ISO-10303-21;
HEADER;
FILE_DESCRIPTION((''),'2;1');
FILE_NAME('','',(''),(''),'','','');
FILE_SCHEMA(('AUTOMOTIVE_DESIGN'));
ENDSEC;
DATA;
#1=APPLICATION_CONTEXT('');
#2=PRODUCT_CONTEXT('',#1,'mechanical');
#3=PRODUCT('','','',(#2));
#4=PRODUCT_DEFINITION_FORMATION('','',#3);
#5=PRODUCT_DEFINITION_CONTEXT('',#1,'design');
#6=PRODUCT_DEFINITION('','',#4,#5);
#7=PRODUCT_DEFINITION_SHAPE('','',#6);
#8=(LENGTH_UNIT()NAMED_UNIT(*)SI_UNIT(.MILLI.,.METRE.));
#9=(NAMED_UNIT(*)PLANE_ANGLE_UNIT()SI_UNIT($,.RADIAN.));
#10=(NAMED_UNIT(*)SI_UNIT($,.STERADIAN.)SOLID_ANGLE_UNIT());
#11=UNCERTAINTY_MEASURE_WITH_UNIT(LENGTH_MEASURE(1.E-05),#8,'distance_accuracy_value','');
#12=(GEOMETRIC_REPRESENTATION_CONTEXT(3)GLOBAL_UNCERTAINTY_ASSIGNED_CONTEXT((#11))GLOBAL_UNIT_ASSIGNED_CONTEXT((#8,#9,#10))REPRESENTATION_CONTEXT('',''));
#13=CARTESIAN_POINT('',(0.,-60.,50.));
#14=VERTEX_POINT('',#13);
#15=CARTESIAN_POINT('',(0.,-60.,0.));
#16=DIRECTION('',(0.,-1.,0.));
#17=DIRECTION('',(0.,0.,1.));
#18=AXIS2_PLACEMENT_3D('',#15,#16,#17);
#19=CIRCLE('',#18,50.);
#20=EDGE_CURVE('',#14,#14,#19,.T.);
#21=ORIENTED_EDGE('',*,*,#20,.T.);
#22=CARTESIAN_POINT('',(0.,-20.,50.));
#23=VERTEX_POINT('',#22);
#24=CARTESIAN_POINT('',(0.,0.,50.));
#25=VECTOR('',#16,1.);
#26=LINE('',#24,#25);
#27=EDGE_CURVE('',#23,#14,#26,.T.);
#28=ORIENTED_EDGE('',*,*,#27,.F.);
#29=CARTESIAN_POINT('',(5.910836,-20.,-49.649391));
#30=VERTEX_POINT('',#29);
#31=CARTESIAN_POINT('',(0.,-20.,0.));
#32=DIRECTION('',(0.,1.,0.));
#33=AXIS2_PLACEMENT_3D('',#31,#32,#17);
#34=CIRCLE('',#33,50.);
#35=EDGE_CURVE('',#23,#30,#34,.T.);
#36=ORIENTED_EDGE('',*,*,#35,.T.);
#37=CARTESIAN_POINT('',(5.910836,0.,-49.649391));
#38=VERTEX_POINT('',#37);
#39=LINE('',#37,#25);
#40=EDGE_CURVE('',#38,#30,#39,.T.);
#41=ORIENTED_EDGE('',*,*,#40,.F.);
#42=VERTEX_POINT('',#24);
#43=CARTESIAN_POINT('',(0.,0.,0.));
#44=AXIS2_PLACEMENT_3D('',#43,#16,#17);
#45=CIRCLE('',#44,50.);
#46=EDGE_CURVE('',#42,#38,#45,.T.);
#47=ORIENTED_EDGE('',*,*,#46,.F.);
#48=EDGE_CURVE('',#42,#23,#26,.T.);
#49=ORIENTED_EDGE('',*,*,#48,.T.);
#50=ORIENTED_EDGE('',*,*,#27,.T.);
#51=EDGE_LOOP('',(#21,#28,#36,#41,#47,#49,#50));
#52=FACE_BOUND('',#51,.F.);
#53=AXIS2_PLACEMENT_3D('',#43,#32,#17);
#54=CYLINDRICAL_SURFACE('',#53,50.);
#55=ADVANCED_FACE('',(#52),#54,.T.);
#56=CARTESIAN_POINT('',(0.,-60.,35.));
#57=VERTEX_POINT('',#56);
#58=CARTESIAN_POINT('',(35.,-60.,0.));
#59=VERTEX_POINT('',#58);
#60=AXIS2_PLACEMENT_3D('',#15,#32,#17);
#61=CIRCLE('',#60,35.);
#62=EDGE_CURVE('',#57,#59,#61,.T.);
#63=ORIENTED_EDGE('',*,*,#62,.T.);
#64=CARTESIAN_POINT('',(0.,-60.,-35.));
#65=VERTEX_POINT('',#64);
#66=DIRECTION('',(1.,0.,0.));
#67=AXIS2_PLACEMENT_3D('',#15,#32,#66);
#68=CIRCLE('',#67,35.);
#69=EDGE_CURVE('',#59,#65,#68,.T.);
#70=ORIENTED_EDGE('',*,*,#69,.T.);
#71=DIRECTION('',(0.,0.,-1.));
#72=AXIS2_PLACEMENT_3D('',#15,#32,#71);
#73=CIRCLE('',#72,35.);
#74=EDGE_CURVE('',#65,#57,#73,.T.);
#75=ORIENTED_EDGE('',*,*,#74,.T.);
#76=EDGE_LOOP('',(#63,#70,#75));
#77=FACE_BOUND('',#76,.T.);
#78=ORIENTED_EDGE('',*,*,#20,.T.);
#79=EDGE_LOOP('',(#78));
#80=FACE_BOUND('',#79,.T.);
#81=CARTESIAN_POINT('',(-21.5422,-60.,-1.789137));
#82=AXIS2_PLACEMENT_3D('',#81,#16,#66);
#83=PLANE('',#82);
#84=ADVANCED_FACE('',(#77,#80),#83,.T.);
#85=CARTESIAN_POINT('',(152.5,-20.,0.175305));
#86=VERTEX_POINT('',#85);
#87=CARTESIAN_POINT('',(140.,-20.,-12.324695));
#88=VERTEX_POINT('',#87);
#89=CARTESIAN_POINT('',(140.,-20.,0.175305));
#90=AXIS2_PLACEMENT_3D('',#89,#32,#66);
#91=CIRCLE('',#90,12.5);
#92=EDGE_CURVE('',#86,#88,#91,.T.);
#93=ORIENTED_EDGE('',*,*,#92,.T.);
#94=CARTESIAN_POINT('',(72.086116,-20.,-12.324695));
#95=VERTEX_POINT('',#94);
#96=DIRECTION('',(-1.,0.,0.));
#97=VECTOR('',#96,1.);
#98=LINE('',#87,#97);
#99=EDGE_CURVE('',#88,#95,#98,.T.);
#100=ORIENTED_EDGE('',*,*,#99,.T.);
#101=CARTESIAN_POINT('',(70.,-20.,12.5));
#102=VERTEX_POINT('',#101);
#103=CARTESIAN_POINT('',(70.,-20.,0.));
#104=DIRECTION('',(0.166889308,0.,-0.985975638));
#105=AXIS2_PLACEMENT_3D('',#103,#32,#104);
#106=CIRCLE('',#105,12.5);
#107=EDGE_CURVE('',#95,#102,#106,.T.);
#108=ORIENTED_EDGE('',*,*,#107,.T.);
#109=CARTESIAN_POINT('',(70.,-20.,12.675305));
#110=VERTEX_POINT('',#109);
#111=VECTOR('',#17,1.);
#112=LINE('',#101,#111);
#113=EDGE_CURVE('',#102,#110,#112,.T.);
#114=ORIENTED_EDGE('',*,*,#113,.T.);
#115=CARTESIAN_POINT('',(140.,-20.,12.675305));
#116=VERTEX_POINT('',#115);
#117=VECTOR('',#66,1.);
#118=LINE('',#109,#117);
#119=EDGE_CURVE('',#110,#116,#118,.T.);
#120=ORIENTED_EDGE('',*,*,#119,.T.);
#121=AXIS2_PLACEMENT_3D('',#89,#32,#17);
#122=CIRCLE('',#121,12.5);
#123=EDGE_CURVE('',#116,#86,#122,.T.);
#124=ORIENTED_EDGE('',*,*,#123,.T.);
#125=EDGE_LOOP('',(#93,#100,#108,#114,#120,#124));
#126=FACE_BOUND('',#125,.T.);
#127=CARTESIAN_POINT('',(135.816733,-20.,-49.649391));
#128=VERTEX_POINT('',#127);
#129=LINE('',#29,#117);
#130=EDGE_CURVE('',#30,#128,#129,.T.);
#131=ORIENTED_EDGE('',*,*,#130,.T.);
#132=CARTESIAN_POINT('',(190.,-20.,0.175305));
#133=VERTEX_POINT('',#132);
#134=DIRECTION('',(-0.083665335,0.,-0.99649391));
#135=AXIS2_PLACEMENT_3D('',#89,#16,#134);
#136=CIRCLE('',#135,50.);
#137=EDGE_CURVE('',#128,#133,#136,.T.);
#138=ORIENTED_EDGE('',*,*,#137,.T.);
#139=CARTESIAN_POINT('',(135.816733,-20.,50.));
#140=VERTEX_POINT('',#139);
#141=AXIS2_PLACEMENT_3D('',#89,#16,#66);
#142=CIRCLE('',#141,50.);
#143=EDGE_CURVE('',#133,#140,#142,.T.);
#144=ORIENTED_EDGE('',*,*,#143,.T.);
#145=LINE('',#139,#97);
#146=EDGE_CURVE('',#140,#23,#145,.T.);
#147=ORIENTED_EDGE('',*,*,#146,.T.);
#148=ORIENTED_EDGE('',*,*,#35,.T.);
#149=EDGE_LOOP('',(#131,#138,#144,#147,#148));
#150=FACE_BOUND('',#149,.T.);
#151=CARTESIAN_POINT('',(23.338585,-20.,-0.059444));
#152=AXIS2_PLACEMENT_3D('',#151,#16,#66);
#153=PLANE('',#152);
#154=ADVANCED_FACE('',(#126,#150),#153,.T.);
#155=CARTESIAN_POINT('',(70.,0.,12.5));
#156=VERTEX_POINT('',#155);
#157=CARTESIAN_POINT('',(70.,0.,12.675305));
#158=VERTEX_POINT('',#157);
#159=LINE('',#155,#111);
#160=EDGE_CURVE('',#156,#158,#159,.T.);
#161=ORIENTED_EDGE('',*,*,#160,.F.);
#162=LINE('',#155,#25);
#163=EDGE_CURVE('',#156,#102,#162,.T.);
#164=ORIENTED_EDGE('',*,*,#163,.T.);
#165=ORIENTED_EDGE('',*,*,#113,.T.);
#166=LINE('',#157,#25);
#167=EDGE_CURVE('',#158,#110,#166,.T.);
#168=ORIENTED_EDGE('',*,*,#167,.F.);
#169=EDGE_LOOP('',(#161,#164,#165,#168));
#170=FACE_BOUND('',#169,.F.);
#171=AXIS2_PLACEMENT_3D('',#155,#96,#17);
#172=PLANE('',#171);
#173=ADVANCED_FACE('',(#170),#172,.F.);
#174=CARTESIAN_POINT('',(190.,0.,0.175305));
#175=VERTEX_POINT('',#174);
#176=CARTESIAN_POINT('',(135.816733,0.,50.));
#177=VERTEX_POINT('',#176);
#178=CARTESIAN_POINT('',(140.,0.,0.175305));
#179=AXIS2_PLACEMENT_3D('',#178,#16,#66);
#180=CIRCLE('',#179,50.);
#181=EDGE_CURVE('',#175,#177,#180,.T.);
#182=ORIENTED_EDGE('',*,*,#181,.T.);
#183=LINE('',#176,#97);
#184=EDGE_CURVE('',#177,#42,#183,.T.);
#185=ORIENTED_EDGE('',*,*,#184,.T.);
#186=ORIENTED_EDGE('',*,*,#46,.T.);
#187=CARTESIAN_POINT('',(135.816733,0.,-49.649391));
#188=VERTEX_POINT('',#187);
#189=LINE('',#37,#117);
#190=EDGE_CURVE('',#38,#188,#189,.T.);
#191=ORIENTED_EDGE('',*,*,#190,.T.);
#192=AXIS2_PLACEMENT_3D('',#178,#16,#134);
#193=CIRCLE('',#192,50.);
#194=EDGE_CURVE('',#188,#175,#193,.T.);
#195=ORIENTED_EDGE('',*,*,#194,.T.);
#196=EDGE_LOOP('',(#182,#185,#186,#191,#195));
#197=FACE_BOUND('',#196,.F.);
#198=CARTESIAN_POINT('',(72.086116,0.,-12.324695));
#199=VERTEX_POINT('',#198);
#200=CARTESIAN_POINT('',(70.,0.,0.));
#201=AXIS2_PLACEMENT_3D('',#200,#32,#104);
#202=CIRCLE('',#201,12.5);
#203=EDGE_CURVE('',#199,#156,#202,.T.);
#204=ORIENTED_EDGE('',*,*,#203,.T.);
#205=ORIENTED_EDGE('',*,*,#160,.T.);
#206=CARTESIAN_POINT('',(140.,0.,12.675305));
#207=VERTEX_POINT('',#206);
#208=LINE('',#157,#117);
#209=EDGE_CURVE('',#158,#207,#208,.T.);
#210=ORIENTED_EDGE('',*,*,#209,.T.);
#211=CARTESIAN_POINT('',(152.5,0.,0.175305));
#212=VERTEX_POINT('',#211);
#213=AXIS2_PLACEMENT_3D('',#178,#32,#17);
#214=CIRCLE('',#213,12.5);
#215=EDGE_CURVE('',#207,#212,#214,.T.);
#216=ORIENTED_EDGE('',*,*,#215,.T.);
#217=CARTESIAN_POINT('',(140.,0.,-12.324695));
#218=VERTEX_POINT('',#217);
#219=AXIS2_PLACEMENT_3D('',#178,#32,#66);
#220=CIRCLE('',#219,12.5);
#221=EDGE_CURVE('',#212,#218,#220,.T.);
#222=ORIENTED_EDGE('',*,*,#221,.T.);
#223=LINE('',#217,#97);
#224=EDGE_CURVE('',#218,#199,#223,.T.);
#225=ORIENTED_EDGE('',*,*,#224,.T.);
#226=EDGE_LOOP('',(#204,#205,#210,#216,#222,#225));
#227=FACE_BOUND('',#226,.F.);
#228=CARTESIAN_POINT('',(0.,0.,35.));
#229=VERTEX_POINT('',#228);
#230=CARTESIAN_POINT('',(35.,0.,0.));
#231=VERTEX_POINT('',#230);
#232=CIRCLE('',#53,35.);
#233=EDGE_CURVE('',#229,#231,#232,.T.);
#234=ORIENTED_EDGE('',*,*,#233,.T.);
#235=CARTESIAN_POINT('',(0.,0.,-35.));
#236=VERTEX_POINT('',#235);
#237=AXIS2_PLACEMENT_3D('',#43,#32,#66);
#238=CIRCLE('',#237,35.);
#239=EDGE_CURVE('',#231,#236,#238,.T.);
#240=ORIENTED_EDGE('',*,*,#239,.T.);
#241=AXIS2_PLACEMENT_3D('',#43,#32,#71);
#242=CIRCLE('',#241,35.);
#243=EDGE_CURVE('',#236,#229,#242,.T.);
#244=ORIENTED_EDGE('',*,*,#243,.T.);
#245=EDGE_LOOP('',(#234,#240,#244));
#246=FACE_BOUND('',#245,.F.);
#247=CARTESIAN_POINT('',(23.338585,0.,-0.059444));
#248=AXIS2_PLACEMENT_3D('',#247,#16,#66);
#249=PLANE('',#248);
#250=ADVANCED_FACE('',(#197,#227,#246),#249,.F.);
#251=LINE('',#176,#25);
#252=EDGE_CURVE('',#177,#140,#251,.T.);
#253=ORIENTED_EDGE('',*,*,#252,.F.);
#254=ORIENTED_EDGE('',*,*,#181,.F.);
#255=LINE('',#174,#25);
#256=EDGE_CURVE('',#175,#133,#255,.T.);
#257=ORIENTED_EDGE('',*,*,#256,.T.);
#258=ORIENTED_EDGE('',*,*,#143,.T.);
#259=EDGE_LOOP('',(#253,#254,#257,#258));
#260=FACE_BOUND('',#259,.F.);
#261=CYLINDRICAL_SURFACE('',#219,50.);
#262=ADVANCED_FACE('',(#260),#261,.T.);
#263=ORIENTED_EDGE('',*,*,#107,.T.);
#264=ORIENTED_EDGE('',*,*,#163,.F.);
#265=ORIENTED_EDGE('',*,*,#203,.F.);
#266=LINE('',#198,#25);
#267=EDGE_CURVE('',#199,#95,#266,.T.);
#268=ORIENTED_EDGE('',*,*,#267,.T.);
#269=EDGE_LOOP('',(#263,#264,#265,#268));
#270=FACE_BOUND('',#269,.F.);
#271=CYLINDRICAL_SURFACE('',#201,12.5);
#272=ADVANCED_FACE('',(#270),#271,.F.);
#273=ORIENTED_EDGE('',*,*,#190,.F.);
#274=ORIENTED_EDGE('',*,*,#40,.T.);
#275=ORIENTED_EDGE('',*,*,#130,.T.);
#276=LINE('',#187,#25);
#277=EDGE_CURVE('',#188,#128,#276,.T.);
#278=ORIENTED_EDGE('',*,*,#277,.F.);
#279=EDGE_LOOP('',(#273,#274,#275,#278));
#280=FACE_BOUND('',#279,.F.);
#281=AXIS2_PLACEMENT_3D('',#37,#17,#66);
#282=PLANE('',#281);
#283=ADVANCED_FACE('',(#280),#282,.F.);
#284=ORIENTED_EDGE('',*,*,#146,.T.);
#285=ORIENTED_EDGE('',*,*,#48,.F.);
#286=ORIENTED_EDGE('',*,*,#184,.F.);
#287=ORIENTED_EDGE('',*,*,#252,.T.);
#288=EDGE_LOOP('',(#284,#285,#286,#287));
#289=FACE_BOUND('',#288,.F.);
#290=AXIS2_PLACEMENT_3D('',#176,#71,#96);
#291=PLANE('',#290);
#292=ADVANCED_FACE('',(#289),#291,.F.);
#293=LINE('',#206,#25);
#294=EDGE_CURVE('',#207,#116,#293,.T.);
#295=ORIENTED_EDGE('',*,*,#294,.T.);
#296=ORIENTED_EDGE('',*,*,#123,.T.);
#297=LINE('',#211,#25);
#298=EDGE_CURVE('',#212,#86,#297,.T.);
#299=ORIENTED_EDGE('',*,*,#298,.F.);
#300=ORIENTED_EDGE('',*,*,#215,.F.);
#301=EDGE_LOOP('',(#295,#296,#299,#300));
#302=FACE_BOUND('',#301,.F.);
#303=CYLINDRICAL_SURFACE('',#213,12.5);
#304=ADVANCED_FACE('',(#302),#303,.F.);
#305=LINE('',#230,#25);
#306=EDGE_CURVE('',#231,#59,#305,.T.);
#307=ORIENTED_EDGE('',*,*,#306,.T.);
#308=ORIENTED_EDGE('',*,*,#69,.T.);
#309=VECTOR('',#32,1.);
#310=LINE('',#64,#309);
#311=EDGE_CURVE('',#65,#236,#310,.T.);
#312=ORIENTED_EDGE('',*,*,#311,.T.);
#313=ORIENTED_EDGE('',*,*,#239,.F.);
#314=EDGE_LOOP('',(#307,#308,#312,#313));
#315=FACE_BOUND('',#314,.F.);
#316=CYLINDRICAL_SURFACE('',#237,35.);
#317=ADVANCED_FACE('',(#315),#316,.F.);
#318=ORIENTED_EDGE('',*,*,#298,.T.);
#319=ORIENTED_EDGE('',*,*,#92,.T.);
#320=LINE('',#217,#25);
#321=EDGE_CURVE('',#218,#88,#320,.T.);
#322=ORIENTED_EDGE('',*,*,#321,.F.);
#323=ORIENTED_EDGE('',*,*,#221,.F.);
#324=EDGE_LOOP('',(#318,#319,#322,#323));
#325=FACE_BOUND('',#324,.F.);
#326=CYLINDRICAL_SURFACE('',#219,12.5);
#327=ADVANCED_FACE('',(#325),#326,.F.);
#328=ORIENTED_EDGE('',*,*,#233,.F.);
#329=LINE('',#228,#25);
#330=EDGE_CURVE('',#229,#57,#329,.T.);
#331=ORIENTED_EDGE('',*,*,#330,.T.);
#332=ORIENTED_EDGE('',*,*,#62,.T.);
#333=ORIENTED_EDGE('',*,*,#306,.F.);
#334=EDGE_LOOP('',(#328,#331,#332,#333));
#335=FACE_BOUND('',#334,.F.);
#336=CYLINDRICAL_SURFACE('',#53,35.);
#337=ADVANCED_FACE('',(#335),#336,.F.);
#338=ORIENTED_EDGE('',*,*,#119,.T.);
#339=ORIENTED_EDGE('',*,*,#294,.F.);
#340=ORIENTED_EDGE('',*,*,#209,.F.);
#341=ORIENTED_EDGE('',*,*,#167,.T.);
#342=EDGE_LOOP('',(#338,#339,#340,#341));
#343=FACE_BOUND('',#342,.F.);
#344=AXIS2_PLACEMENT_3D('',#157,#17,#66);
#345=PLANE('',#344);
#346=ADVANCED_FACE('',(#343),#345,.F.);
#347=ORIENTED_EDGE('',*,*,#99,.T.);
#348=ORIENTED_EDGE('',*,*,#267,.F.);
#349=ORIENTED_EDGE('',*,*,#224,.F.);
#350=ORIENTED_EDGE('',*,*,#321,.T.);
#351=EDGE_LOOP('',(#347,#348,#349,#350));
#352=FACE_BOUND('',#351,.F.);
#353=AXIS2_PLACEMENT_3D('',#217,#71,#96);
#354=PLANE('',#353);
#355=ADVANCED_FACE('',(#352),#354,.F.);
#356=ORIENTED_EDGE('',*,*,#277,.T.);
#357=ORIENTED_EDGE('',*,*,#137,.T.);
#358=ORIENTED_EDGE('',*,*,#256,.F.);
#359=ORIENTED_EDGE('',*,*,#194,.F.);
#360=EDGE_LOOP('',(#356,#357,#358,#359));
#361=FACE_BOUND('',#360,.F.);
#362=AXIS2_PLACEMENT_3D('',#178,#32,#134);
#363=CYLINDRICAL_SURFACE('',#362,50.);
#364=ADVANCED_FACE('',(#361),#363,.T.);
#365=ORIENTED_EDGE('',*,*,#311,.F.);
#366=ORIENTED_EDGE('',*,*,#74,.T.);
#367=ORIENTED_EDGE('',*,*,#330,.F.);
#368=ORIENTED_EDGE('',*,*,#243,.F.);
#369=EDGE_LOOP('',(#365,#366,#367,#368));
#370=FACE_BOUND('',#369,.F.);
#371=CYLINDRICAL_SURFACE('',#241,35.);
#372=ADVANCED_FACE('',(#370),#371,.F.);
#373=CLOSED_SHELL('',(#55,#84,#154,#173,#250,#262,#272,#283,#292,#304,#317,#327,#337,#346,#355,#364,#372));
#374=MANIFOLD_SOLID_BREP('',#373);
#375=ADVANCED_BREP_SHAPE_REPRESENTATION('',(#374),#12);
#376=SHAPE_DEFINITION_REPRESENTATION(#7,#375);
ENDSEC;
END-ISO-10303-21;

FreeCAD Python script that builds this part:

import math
import FreeCAD as App
import Part
import Sketcher

V = App.Vector

doc = App.newDocument("Part")
body = doc.addObject("PartDesign::Body", "Body")

sketch1 = body.newObject("Sketcher::SketchObject", "Sketch")
sketch1.AttachmentSupport = (doc.getObject("XZ_Plane"), [""])
sketch1.MapMode = "FlatFace"
sketch1.addGeometry(Part.Circle(V(0, 0, 0), V(0, 0, 1), 50), False)
sketch1.addGeometry(Part.ArcOfCircle(Part.Circle(V(0, 0, 0), V(0, 0, 1), 35), math.radians(90), math.radians(270)), False)
sketch1.addGeometry(Part.ArcOfCircle(Part.Circle(V(0, 0, 0), V(0, 0, 1), 35), math.radians(0), math.radians(90)), False)
sketch1.addGeometry(Part.ArcOfCircle(Part.Circle(V(0, 0, 0), V(0, 0, 1), 35), math.radians(-90), math.radians(0)), False)
sketch1.addConstraint(Sketcher.Constraint("Tangent", 1, 1, 2, 2))
sketch1.addConstraint(Sketcher.Constraint("Tangent", 2, 1, 3, 2))
sketch1.addConstraint(Sketcher.Constraint("Tangent", 3, 1, 1, 2))
sketch1.addConstraint(Sketcher.Constraint("Coincident", 0, 3, -1, 1))
sketch1.addConstraint(Sketcher.Constraint("Coincident", 1, 3, -1, 1))
sketch1.addConstraint(Sketcher.Constraint("PointOnObject", 1, 1, -2))
sketch1.addConstraint(Sketcher.Constraint("PointOnObject", 2, 1, -1))
sketch1.addConstraint(Sketcher.Constraint("PointOnObject", 3, 1, -2))
sketch1.addConstraint(Sketcher.Constraint("Diameter", 0, 100.0))
sketch1.addConstraint(Sketcher.Constraint("Radius", 1, 35.0))
pad1 = body.newObject("PartDesign::Pad", "Pad")
pad1.Profile = sketch1
pad1.Length = 60

sketch2 = body.newObject("Sketcher::SketchObject", "Sketch001")
sketch2.AttachmentSupport = (doc.getObject("XZ_Plane"), [""])
sketch2.MapMode = "FlatFace"
sketch2.addGeometry(Part.LineSegment(V(5.91, -49.65, 0), V(135.82, -49.65, 0)), False)
sketch2.addGeometry(Part.ArcOfCircle(Part.Circle(V(140, 0.18, 0), V(0, 0, 1), 50), math.radians(-95), math.radians(0)), False)
sketch2.addGeometry(Part.ArcOfCircle(Part.Circle(V(140, 0.18, 0), V(0, 0, 1), 50), math.radians(0), math.radians(95)), False)
sketch2.addGeometry(Part.LineSegment(V(135.82, 50, 0), V(0, 50, 0)), False)
sketch2.addGeometry(Part.ArcOfCircle(Part.Circle(V(0, 0, 0), V(0, 0, 1), 50), math.radians(90), math.radians(277)), False)
sketch2.addGeometry(Part.ArcOfCircle(Part.Circle(V(140, 0.18, 0), V(0, 0, 1), 12.5), math.radians(-90), math.radians(0)), False)
sketch2.addGeometry(Part.LineSegment(V(140, -12.32, 0), V(72.09, -12.32, 0)), False)
sketch2.addGeometry(Part.ArcOfCircle(Part.Circle(V(70, 0, 0), V(0, 0, 1), 12.5), math.radians(90), math.radians(280)), False)
sketch2.addGeometry(Part.LineSegment(V(70, 12.5, 0), V(70, 12.68, 0)), False)
sketch2.addGeometry(Part.LineSegment(V(70, 12.68, 0), V(140, 12.68, 0)), False)
sketch2.addGeometry(Part.ArcOfCircle(Part.Circle(V(140, 0.18, 0), V(0, 0, 1), 12.5), math.radians(0), math.radians(90)), False)
sketch2.addGeometry(Part.ArcOfCircle(Part.Circle(V(0, 0, 0), V(0, 0, 1), 35), math.radians(0), math.radians(90)), False)
sketch2.addGeometry(Part.ArcOfCircle(Part.Circle(V(0, 0, 0), V(0, 0, 1), 35), math.radians(-90), math.radians(0)), False)
sketch2.addGeometry(Part.ArcOfCircle(Part.Circle(V(0, 0, 0), V(0, 0, 1), 35), math.radians(90), math.radians(270)), False)
sketch2.addConstraint(Sketcher.Constraint("Coincident", 0, 2, 1, 1))
sketch2.addConstraint(Sketcher.Constraint("Tangent", 1, 2, 2, 1))
sketch2.addConstraint(Sketcher.Constraint("Coincident", 2, 2, 3, 1))
sketch2.addConstraint(Sketcher.Constraint("Tangent", 3, 2, 4, 1))
sketch2.addConstraint(Sketcher.Constraint("Coincident", 4, 2, 0, 1))
sketch2.addConstraint(Sketcher.Constraint("Tangent", 5, 1, 6, 1))
sketch2.addConstraint(Sketcher.Constraint("Coincident", 6, 2, 7, 2))
sketch2.addConstraint(Sketcher.Constraint("Coincident", 7, 1, 8, 1))
sketch2.addConstraint(Sketcher.Constraint("Coincident", 8, 2, 9, 1))
sketch2.addConstraint(Sketcher.Constraint("Tangent", 9, 2, 10, 2))
sketch2.addConstraint(Sketcher.Constraint("Tangent", 10, 1, 5, 2))
sketch2.addConstraint(Sketcher.Constraint("Tangent", 11, 1, 12, 2))
sketch2.addConstraint(Sketcher.Constraint("Tangent", 12, 1, 13, 2))
sketch2.addConstraint(Sketcher.Constraint("Tangent", 13, 1, 11, 2))
sketch2.addConstraint(Sketcher.Constraint("Horizontal", 0))
sketch2.addConstraint(Sketcher.Constraint("Horizontal", 3))
sketch2.addConstraint(Sketcher.Constraint("Horizontal", 6))
sketch2.addConstraint(Sketcher.Constraint("Vertical", 8))
sketch2.addConstraint(Sketcher.Constraint("Horizontal", 9))
sketch2.addConstraint(Sketcher.Constraint("Coincident", 4, 3, -1, 1))
sketch2.addConstraint(Sketcher.Constraint("Coincident", 11, 3, -1, 1))
sketch2.addConstraint(Sketcher.Constraint("Coincident", 5, 3, 1, 3))
sketch2.addConstraint(Sketcher.Constraint("Equal", 1, 2))
sketch2.addConstraint(Sketcher.Constraint("Equal", 2, 4))
sketch2.addConstraint(Sketcher.Constraint("Equal", 5, 7))
sketch2.addConstraint(Sketcher.Constraint("Equal", 7, 10))
sketch2.addConstraint(Sketcher.Constraint("PointOnObject", 7, 3, -1))
sketch2.addConstraint(Sketcher.Constraint("PointOnObject", 11, 1, -1))
sketch2.addConstraint(Sketcher.Constraint("PointOnObject", 12, 1, -2))
sketch2.addConstraint(Sketcher.Constraint("PointOnObject", 13, 1, -2))
sketch2.addConstraint(Sketcher.Constraint("Horizontal", 10, 3, 1, 2))
sketch2.addConstraint(Sketcher.Constraint("Horizontal", 1, 2, 10, 1))
sketch2.addConstraint(Sketcher.Constraint("Vertical", 0, 2, 2, 2))
sketch2.addConstraint(Sketcher.Constraint("Radius", 1, 50.0))
sketch2.addConstraint(Sketcher.Constraint("Radius", 11, 35.0))
sketch2.addConstraint(Sketcher.Constraint("Radius", 5, 12.5))
sketch2.addConstraint(Sketcher.Constraint("DistanceX", 9, 1, 9, 2, 70.0))
sketch2.addConstraint(Sketcher.Constraint("DistanceX", -1, 1, 1, 3, 140.0))
sketch2.addConstraint(Sketcher.Constraint("DistanceX", -1, 1, 7, 3, 70.0))
sketch2.addConstraint(Sketcher.Constraint("DistanceX", 0, 1, 0, 2, 129.905898))
pad2 = body.newObject("PartDesign::Pad", "Pad001")
pad2.Profile = sketch2
pad2.Length = 20

doc.recompute()
